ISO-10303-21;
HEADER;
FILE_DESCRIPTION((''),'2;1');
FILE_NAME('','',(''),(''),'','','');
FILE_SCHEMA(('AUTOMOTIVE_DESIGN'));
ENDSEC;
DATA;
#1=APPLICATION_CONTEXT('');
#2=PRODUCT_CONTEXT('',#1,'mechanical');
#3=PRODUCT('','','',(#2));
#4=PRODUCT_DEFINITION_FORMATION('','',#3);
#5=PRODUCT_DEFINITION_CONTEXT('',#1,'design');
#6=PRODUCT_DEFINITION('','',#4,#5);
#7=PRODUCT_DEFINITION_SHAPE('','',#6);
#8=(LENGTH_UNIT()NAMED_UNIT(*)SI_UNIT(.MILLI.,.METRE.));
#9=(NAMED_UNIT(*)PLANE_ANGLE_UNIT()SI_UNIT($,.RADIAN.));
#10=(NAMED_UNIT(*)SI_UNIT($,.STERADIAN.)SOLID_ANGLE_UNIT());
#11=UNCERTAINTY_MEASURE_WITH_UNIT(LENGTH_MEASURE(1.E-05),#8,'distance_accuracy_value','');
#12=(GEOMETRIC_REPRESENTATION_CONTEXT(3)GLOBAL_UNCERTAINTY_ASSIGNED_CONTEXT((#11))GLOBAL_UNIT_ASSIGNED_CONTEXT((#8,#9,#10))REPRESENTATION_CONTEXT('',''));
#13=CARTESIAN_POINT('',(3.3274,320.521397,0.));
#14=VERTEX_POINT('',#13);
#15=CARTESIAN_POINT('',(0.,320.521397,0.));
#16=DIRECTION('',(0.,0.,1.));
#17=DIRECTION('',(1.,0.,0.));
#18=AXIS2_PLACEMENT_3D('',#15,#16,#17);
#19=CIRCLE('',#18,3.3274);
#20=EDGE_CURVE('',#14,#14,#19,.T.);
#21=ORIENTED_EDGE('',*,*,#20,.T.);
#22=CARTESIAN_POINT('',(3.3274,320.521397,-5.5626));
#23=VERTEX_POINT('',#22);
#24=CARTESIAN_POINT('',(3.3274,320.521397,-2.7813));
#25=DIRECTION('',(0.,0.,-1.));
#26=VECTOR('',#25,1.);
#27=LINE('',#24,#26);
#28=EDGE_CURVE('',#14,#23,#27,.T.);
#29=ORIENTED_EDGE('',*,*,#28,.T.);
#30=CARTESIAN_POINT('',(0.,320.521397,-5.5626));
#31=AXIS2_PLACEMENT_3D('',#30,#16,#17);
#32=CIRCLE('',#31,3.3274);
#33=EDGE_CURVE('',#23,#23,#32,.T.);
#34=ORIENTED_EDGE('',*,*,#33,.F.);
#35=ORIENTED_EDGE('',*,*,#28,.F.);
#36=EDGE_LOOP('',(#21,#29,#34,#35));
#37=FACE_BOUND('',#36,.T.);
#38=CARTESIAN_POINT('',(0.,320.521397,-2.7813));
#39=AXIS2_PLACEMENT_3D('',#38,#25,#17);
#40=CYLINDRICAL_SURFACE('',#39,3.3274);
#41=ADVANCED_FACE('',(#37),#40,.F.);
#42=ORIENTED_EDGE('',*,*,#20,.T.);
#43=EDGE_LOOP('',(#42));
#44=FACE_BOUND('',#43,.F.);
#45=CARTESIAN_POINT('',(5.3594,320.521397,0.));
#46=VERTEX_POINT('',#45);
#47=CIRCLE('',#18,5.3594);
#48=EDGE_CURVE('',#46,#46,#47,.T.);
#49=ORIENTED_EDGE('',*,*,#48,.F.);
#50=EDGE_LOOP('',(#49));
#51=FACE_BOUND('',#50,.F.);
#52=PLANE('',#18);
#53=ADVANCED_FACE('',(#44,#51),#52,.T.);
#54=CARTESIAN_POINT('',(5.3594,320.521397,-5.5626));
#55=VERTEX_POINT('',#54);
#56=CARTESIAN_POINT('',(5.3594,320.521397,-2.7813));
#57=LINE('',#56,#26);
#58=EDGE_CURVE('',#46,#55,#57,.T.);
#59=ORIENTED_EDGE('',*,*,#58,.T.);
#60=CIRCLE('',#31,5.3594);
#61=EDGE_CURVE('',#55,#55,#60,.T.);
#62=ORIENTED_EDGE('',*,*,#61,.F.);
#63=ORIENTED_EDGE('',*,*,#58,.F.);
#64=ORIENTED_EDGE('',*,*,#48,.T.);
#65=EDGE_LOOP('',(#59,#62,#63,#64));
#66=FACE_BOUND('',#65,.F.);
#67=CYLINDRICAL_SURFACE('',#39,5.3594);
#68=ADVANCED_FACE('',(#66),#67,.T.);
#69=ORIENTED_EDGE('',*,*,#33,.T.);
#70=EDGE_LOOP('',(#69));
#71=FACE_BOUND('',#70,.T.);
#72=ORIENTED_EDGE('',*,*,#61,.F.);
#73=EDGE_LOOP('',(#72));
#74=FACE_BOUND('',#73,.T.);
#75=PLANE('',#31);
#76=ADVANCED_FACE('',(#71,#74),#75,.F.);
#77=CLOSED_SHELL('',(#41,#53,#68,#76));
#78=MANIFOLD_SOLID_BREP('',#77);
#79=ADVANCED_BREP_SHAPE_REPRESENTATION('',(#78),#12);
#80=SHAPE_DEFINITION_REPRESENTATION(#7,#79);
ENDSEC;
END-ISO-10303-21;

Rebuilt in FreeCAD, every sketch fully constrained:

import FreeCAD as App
import Part
import Sketcher
Q = App.Units.Quantity

doc = App.newDocument("Part")
body = doc.addObject("PartDesign::Body", "Body")

# Sketch on XZ plane
sketch1 = body.newObject("Sketcher::SketchObject", "Sketch")
sketch1.AttachmentSupport = (doc.getObject("XZ_Plane"), [""])
sketch1.MapMode = "FlatFace"
sketch1.AttachmentOffset = App.Placement(App.Vector(0, 0, -320.521397), App.Rotation())
sketch1.addGeometry([
    Part.LineSegment(App.Vector(3.3274, -5.5626, 0), App.Vector(3.3274, 0, 0)),
    Part.LineSegment(App.Vector(3.3274, 0, 0), App.Vector(5.3594, 0, 0)),
    Part.LineSegment(App.Vector(5.3594, 0, 0), App.Vector(5.3594, -5.5626, 0)),
    Part.LineSegment(App.Vector(5.3594, -5.5626, 0), App.Vector(3.3274, -5.5626, 0)),
], False)
sketch1.addConstraint([
    Sketcher.Constraint("Coincident", 0, 2, 1, 1),
    Sketcher.Constraint("Coincident", 1, 2, 2, 1),
    Sketcher.Constraint("Coincident", 2, 2, 3, 1),
    Sketcher.Constraint("Coincident", 3, 2, 0, 1),
    Sketcher.Constraint("Vertical", 0),
    Sketcher.Constraint("Horizontal", 1),
    Sketcher.Constraint("Vertical", 2),
    Sketcher.Constraint("Horizontal", 3),
    Sketcher.Constraint("PointOnObject", 0, 2, -1),
    Sketcher.Constraint("DistanceX", 1, 1, 1, 2, Q("0.08 in")),
    Sketcher.Constraint("DistanceY", 0, 1, 0, 2, Q("0.219 in")),
    Sketcher.Constraint("DistanceX", -1, 1, 0, 2, Q("0.131 in")),
])
revolution = body.newObject("PartDesign::Revolution", "Revolution")
revolution.Profile = sketch1
revolution.ReferenceAxis = (sketch1, ["V_Axis"])
revolution.Angle = 360

doc.recompute()
